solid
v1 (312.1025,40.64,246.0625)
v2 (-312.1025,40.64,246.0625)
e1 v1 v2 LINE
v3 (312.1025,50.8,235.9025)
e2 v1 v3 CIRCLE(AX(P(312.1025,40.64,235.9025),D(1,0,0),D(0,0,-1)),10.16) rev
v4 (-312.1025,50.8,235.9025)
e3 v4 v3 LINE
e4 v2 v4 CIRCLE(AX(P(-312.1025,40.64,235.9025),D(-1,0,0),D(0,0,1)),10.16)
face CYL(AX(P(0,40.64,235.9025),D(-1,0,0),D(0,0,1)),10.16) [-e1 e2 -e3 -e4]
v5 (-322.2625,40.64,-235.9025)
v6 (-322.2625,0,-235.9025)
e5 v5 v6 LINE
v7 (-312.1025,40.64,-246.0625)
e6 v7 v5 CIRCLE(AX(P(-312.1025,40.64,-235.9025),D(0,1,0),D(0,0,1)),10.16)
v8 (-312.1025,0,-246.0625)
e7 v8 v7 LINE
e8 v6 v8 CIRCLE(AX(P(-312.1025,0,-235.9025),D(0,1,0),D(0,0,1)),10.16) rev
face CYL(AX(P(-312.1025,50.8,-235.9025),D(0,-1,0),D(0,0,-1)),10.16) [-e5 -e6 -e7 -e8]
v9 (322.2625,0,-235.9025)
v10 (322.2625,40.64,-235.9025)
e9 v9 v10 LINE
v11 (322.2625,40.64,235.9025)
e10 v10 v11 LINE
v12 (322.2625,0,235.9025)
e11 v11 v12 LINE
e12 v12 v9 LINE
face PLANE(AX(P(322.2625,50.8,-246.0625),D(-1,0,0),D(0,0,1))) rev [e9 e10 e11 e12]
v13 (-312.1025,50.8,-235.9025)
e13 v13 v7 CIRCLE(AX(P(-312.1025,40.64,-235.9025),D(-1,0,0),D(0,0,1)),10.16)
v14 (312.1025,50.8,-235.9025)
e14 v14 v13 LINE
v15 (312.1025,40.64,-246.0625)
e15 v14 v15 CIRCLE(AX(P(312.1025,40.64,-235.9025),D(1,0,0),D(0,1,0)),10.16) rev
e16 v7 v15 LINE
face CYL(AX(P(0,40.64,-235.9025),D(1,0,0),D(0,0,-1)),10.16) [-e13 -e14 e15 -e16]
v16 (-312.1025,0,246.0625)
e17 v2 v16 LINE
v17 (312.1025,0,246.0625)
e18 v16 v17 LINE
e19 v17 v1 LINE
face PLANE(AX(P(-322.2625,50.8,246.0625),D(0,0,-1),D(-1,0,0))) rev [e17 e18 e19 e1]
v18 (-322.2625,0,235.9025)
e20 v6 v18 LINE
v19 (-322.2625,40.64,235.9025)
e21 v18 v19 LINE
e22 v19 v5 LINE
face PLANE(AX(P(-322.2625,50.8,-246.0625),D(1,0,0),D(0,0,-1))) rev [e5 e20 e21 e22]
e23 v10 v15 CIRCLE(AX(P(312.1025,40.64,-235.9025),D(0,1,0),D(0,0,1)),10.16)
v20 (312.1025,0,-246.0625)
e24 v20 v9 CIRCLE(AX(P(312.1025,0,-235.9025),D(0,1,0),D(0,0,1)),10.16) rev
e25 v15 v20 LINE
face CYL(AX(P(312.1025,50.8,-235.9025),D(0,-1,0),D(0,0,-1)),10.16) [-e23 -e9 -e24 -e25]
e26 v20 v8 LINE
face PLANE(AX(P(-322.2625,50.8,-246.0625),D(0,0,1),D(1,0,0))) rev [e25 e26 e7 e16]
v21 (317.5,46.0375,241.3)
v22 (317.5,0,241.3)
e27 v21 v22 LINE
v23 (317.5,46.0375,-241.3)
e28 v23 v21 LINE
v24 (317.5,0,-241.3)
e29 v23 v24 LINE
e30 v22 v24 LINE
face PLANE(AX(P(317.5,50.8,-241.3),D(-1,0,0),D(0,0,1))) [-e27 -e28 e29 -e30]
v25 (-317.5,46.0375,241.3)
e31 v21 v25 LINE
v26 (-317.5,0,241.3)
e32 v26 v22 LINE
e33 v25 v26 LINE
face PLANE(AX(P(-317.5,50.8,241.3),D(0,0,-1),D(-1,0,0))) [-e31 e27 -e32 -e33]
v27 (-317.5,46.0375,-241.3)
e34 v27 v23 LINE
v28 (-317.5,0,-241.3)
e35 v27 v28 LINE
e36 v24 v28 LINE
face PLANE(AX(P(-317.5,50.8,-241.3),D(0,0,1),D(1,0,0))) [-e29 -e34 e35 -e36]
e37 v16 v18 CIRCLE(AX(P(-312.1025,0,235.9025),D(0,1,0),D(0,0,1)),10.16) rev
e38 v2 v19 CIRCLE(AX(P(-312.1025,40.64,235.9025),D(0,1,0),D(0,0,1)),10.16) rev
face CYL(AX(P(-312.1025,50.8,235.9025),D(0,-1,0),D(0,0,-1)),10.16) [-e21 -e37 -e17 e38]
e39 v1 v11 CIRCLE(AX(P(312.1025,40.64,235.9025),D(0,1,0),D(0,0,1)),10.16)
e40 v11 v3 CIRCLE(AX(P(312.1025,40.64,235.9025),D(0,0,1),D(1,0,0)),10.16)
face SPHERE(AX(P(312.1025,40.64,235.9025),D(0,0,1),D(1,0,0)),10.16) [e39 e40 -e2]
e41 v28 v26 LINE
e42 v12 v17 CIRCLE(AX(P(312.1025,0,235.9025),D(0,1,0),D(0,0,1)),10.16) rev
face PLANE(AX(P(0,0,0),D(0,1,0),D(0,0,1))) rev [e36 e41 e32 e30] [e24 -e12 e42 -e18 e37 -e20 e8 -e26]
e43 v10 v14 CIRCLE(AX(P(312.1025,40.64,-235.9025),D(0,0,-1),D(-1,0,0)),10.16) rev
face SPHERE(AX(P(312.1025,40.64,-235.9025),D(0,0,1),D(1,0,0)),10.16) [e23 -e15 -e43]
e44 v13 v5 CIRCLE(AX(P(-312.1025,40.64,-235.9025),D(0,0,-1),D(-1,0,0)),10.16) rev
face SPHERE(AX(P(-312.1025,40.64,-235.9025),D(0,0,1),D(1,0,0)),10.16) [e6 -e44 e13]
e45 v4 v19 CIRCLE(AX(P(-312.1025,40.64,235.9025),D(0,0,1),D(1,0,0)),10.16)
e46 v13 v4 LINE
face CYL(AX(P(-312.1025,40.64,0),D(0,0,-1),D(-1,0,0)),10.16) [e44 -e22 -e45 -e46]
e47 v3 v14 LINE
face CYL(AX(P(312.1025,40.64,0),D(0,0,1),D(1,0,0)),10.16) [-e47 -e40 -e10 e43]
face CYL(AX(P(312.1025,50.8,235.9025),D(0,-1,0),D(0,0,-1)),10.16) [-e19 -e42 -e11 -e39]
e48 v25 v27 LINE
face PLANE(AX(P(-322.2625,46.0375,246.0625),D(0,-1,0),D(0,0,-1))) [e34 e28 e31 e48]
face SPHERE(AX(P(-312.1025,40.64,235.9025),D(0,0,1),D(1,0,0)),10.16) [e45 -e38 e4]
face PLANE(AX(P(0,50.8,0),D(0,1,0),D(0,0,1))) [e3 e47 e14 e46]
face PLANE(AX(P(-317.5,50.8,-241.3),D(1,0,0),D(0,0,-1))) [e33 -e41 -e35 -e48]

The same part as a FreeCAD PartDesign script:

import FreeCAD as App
import Part
import Sketcher
from FreeCAD import Vector
Q = App.Units.Quantity


def edges_at(feature, points):
    """Names of the edges that pass closest to the given points."""
    edges = feature.Shape.Edges
    near = lambda p: min(range(len(edges)), key=lambda i: edges[i].distToShape(Part.Vertex(*p))[0])
    return sorted({f"Edge{near(p) + 1}" for p in points})

doc = App.newDocument("Part")
params = doc.addObject("Spreadsheet::Sheet", "Params")
for row, (alias, value) in enumerate([
    ("sketch1_width", "25 in"),
    ("sketch1_height", "19 in"),
    ("sketch1_width2", "25.375 in"),
    ("sketch1_height2", "19.375 in"),
    ("pad1_length", "2 in"),
    ("sketch2_width", "0.1875 in"),
    ("sketch2_height", "19.375 in"),
    ("pad2_length", "25.375 in"),
    ("fillet_radius", "0.4 in"),
], start=1):
    params.set(f"A{row}", alias)
    params.set(f"B{row}", "=" + value)
    params.setAlias(f"B{row}", alias)

body = doc.addObject("PartDesign::Body", "Body")

# Sketch on XZ plane
sketch1 = body.newObject("Sketcher::SketchObject", "Sketch")
sketch1.AttachmentSupport = (doc.getObject("XZ_Plane"), [""])
sketch1.MapMode = "FlatFace"
sketch1.addGeometry(Part.LineSegment(Vector(-322, -246, 0), Vector(-322, 246, 0)), False)
sketch1.addGeometry(Part.LineSegment(Vector(-322, 246, 0), Vector(322, 246, 0)), False)
sketch1.addGeometry(Part.LineSegment(Vector(322, 246, 0), Vector(322, -246, 0)), False)
sketch1.addGeometry(Part.LineSegment(Vector(322, -246, 0), Vector(-322, -246, 0)), False)
sketch1.addGeometry(Part.LineSegment(Vector(318, 241, 0), Vector(-318, 241, 0)), False)
sketch1.addGeometry(Part.LineSegment(Vector(-318, 241, 0), Vector(-318, -241, 0)), False)
sketch1.addGeometry(Part.LineSegment(Vector(-318, -241, 0), Vector(318, -241, 0)), False)
sketch1.addGeometry(Part.LineSegment(Vector(318, -241, 0), Vector(318, 241, 0)), False)
sketch1.addConstraint(Sketcher.Constraint("Coincident", 0, 2, 1, 1))
sketch1.addConstraint(Sketcher.Constraint("Coincident", 1, 2, 2, 1))
sketch1.addConstraint(Sketcher.Constraint("Coincident", 2, 2, 3, 1))
sketch1.addConstraint(Sketcher.Constraint("Coincident", 3, 2, 0, 1))
sketch1.addConstraint(Sketcher.Constraint("Coincident", 4, 2, 5, 1))
sketch1.addConstraint(Sketcher.Constraint("Coincident", 5, 2, 6, 1))
sketch1.addConstraint(Sketcher.Constraint("Coincident", 6, 2, 7, 1))
sketch1.addConstraint(Sketcher.Constraint("Coincident", 7, 2, 4, 1))
sketch1.addConstraint(Sketcher.Constraint("Vertical", 0))
sketch1.addConstraint(Sketcher.Constraint("Horizontal", 1))
sketch1.addConstraint(Sketcher.Constraint("Vertical", 2))
sketch1.addConstraint(Sketcher.Constraint("Horizontal", 3))
sketch1.addConstraint(Sketcher.Constraint("Horizontal", 4))
sketch1.addConstraint(Sketcher.Constraint("Vertical", 5))
sketch1.addConstraint(Sketcher.Constraint("Horizontal", 6))
sketch1.addConstraint(Sketcher.Constraint("Vertical", 7))
sketch1.addConstraint(Sketcher.Constraint("Symmetric", 0, 2, 2, 2, -1, 1))
sketch1.addConstraint(Sketcher.Constraint("Symmetric", 4, 2, 6, 2, -1, 1))
sketch1.addConstraint(Sketcher.Constraint("DistanceX", 4, 2, 4, 1, Q("25 in")))
sketch1.addConstraint(Sketcher.Constraint("DistanceY", 5, 2, 5, 1, Q("19 in")))
sketch1.addConstraint(Sketcher.Constraint("DistanceX", 1, 1, 1, 2, Q("25.375 in")))
sketch1.addConstraint(Sketcher.Constraint("DistanceY", 0, 1, 0, 2, Q("19.375 in")))
sketch1.setExpression("Constraints[18]", "Params.sketch1_width")
sketch1.setExpression("Constraints[19]", "Params.sketch1_height")
sketch1.setExpression("Constraints[20]", "Params.sketch1_width2")
sketch1.setExpression("Constraints[21]", "Params.sketch1_height2")
pad1 = body.newObject("PartDesign::Pad", "Pad")
pad1.Profile = sketch1
pad1.setExpression("Length", "Params.pad1_length")
pad1.Reversed = True

# Sketch on YZ plane
sketch2 = body.newObject("Sketcher::SketchObject", "Sketch001")
sketch2.AttachmentSupport = (doc.getObject("YZ_Plane"), [""])
sketch2.MapMode = "FlatFace"
sketch2.AttachmentOffset = App.Placement(Vector(0, 0, 12.6875 * 25.4), App.Rotation())
sketch2.addGeometry(Part.LineSegment(Vector(50.8, 246.1, 0), Vector(46, 246.1, 0)), False)
sketch2.addGeometry(Part.LineSegment(Vector(46, 246.1, 0), Vector(46, -246.1, 0)), False)
sketch2.addGeometry(Part.LineSegment(Vector(46, -246.1, 0), Vector(50.8, -246.1, 0)), False)
sketch2.addGeometry(Part.LineSegment(Vector(50.8, -246.1, 0), Vector(50.8, 246.1, 0)), False)
sketch2.addConstraint(Sketcher.Constraint("Coincident", 0, 2, 1, 1))
sketch2.addConstraint(Sketcher.Constraint("Coincident", 1, 2, 2, 1))
sketch2.addConstraint(Sketcher.Constraint("Coincident", 2, 2, 3, 1))
sketch2.addConstraint(Sketcher.Constraint("Coincident", 3, 2, 0, 1))
sketch2.addConstraint(Sketcher.Constraint("Horizontal", 0))
sketch2.addConstraint(Sketcher.Constraint("Vertical", 1))
sketch2.addConstraint(Sketcher.Constraint("Horizontal", 2))
sketch2.addConstraint(Sketcher.Constraint("Vertical", 3))
sketch2.addConstraint(Sketcher.Constraint("DistanceX", -1, 1, 2, 2, Q("2 in")))
sketch2.addConstraint(Sketcher.Constraint("DistanceX", 0, 2, 0, 1, Q("0.1875 in")))
sketch2.addConstraint(Sketcher.Constraint("DistanceY", 1, 2, 1, 1, Q("19.375 in")))
sketch2.addConstraint(Sketcher.Constraint("DistanceY", -1, 1, 0, 2, Q("9.6875 in")))
sketch2.setExpression("Constraints[9]", "Params.sketch2_width")
sketch2.setExpression("Constraints[10]", "Params.sketch2_height")
pad2 = body.newObject("PartDesign::Pad", "Pad001")
pad2.Profile = sketch2
pad2.setExpression("Length", "Params.pad2_length")
pad2.Reversed = True
doc.recompute()

fillet = body.newObject("PartDesign::Fillet", "Fillet")
fillet.Base = (pad2, edges_at(pad2, [
    (-322.262, 50.8, 0),
    (0, 50.8, 246.062),
    (322.262, 50.8, 0),
    (0, 50.8, -246.062),
    (322.262, 25.4, 246.062),
    (-322.262, 25.4, 246.062),
    (-322.262, 25.4, -246.062),
    (322.262, 25.4, -246.062),
]))
fillet.setExpression("Radius", "Params.fillet_radius")

doc.recompute()
